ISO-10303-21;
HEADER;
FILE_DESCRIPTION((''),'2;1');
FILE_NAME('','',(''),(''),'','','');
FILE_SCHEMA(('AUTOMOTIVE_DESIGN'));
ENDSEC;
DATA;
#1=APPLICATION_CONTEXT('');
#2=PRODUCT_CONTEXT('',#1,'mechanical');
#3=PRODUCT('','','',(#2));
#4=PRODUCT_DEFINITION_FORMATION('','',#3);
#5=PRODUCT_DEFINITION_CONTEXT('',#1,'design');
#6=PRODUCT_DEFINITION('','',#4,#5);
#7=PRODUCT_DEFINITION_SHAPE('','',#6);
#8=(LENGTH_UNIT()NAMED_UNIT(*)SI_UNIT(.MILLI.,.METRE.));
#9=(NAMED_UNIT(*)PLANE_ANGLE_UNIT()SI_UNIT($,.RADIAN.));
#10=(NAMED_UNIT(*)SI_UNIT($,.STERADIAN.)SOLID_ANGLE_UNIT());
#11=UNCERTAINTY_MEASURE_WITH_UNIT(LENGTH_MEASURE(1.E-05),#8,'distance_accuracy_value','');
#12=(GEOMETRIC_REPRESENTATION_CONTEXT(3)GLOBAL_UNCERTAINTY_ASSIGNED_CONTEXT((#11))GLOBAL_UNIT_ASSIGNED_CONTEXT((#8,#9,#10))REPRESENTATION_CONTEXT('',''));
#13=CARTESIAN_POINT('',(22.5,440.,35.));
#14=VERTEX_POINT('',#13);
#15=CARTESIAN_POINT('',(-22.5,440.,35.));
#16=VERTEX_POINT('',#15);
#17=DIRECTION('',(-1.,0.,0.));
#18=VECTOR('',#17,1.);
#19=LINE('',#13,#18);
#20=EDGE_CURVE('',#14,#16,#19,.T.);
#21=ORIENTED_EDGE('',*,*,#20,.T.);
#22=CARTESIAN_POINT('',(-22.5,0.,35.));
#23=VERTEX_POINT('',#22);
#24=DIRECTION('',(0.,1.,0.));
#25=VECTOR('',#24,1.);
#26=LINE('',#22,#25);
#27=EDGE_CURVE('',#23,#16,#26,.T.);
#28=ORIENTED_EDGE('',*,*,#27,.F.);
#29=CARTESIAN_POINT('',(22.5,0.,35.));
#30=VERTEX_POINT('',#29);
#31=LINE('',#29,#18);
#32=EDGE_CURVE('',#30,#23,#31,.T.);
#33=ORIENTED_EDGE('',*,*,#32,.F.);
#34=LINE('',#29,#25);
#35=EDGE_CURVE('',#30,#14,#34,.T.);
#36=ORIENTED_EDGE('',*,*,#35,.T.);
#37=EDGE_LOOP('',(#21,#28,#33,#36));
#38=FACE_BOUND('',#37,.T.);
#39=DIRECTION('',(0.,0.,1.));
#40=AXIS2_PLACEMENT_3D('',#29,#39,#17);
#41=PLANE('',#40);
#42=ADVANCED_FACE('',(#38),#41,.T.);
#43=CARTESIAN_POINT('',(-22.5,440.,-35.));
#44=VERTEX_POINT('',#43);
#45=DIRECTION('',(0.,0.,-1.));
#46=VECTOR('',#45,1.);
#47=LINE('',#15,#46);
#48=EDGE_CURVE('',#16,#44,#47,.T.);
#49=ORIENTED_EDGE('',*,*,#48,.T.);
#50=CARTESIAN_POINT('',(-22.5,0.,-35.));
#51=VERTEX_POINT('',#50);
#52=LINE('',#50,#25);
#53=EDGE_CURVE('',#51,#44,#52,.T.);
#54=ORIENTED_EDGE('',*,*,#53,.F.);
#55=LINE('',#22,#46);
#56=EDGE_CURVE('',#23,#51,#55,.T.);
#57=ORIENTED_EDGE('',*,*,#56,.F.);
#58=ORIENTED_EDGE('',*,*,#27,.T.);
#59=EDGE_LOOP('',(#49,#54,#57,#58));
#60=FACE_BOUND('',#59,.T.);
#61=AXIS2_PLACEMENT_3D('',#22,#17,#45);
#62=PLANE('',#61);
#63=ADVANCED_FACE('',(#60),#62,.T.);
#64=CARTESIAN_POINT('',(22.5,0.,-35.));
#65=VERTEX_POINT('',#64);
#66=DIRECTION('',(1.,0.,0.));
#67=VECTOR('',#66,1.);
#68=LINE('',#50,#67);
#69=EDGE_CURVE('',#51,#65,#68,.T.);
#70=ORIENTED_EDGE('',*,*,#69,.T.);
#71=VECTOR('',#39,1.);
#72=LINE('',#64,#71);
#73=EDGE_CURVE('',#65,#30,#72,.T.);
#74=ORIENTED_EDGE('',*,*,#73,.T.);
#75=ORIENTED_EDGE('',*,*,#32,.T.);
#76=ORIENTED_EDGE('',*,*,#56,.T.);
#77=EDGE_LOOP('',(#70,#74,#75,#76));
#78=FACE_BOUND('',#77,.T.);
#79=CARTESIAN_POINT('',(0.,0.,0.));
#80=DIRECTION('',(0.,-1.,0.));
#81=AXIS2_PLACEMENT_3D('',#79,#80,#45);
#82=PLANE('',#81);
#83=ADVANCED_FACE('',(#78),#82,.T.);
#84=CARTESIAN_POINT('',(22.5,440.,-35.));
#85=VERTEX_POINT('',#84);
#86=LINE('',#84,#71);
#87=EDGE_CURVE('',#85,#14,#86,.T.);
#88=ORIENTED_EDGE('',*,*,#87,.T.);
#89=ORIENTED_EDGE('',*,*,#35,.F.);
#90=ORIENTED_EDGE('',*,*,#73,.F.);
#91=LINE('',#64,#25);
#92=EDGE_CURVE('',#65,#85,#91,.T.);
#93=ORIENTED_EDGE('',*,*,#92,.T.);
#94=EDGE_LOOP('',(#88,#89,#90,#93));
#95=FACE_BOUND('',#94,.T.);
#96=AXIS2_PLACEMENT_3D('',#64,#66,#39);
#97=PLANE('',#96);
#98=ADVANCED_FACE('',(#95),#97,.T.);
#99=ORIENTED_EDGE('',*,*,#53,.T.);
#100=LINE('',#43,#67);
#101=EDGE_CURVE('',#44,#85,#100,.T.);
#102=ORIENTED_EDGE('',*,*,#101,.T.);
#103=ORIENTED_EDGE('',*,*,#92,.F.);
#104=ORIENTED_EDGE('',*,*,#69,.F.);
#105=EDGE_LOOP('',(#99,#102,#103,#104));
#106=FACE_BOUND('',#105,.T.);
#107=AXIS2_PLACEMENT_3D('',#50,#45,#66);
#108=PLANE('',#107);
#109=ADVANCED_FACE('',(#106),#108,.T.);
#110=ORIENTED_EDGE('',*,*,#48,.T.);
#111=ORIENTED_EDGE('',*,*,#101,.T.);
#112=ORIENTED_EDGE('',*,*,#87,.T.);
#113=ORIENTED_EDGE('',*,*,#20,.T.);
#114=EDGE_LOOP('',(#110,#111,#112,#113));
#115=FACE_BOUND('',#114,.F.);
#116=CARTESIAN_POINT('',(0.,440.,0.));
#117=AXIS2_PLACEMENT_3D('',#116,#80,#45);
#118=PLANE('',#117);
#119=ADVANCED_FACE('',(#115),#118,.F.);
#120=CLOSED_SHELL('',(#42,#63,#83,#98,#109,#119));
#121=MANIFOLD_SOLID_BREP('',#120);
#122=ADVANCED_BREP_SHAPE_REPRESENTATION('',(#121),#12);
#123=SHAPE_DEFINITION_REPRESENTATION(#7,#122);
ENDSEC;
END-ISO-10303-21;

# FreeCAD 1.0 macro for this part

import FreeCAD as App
import Part
import Sketcher
from FreeCAD import Vector


def add_polygon(sketch, points):
    """Adds a closed chain of lines whose ends are joined by coincident constraints."""
    first, n = sketch.GeometryCount, len(points)
    for a, b in zip(points, points[1:] + points[:1]):
        sketch.addGeometry(Part.LineSegment(App.Vector(*a, 0), App.Vector(*b, 0)), False)
    for i in range(n):
        sketch.addConstraint(Sketcher.Constraint("Coincident", first + i, 2, first + (i + 1) % n, 1))

doc = App.newDocument("Part")
params = doc.addObject("Spreadsheet::Sheet", "Params")
for row, (alias, value) in enumerate([
    ("sketch1_width", "45 mm"),
    ("sketch1_height", "70 mm"),
    ("pad1_length", "440 mm"),
], start=1):
    params.set(f"A{row}", alias)
    params.set(f"B{row}", "=" + value)
    params.setAlias(f"B{row}", alias)

body = doc.addObject("PartDesign::Body", "Body")

sketch1 = doc.addObject("Sketcher::SketchObject", "Sketch")
body.addObject(sketch1)
sketch1.AttachmentSupport = (doc.XZ_Plane, [""])
sketch1.MapMode = "FlatFace"
add_polygon(sketch1, [(-22.5, 35), (-22.5, -35), (22.5, -35), (22.5, 35)])
sketch1.addConstraint([
    Sketcher.Constraint("Vertical", 0),
    Sketcher.Constraint("Horizontal", 1),
    Sketcher.Constraint("Vertical", 2),
    Sketcher.Constraint("Horizontal", 3),
    Sketcher.Constraint("Symmetric", 0, 2, 2, 2, -1, 1),
    Sketcher.Constraint("DistanceX", 1, 1, 1, 2, 45.0),
    Sketcher.Constraint("DistanceY", 0, 2, 0, 1, 70.0),
])
sketch1.setExpression("Constraints[9]", "Params.sketch1_width")
sketch1.setExpression("Constraints[10]", "Params.sketch1_height")
pad1 = doc.addObject("PartDesign::Pad", "Pad")
body.addObject(pad1)
pad1.Profile = sketch1
pad1.setExpression("Length", "Params.pad1_length")
pad1.Reversed = True

doc.recompute()
